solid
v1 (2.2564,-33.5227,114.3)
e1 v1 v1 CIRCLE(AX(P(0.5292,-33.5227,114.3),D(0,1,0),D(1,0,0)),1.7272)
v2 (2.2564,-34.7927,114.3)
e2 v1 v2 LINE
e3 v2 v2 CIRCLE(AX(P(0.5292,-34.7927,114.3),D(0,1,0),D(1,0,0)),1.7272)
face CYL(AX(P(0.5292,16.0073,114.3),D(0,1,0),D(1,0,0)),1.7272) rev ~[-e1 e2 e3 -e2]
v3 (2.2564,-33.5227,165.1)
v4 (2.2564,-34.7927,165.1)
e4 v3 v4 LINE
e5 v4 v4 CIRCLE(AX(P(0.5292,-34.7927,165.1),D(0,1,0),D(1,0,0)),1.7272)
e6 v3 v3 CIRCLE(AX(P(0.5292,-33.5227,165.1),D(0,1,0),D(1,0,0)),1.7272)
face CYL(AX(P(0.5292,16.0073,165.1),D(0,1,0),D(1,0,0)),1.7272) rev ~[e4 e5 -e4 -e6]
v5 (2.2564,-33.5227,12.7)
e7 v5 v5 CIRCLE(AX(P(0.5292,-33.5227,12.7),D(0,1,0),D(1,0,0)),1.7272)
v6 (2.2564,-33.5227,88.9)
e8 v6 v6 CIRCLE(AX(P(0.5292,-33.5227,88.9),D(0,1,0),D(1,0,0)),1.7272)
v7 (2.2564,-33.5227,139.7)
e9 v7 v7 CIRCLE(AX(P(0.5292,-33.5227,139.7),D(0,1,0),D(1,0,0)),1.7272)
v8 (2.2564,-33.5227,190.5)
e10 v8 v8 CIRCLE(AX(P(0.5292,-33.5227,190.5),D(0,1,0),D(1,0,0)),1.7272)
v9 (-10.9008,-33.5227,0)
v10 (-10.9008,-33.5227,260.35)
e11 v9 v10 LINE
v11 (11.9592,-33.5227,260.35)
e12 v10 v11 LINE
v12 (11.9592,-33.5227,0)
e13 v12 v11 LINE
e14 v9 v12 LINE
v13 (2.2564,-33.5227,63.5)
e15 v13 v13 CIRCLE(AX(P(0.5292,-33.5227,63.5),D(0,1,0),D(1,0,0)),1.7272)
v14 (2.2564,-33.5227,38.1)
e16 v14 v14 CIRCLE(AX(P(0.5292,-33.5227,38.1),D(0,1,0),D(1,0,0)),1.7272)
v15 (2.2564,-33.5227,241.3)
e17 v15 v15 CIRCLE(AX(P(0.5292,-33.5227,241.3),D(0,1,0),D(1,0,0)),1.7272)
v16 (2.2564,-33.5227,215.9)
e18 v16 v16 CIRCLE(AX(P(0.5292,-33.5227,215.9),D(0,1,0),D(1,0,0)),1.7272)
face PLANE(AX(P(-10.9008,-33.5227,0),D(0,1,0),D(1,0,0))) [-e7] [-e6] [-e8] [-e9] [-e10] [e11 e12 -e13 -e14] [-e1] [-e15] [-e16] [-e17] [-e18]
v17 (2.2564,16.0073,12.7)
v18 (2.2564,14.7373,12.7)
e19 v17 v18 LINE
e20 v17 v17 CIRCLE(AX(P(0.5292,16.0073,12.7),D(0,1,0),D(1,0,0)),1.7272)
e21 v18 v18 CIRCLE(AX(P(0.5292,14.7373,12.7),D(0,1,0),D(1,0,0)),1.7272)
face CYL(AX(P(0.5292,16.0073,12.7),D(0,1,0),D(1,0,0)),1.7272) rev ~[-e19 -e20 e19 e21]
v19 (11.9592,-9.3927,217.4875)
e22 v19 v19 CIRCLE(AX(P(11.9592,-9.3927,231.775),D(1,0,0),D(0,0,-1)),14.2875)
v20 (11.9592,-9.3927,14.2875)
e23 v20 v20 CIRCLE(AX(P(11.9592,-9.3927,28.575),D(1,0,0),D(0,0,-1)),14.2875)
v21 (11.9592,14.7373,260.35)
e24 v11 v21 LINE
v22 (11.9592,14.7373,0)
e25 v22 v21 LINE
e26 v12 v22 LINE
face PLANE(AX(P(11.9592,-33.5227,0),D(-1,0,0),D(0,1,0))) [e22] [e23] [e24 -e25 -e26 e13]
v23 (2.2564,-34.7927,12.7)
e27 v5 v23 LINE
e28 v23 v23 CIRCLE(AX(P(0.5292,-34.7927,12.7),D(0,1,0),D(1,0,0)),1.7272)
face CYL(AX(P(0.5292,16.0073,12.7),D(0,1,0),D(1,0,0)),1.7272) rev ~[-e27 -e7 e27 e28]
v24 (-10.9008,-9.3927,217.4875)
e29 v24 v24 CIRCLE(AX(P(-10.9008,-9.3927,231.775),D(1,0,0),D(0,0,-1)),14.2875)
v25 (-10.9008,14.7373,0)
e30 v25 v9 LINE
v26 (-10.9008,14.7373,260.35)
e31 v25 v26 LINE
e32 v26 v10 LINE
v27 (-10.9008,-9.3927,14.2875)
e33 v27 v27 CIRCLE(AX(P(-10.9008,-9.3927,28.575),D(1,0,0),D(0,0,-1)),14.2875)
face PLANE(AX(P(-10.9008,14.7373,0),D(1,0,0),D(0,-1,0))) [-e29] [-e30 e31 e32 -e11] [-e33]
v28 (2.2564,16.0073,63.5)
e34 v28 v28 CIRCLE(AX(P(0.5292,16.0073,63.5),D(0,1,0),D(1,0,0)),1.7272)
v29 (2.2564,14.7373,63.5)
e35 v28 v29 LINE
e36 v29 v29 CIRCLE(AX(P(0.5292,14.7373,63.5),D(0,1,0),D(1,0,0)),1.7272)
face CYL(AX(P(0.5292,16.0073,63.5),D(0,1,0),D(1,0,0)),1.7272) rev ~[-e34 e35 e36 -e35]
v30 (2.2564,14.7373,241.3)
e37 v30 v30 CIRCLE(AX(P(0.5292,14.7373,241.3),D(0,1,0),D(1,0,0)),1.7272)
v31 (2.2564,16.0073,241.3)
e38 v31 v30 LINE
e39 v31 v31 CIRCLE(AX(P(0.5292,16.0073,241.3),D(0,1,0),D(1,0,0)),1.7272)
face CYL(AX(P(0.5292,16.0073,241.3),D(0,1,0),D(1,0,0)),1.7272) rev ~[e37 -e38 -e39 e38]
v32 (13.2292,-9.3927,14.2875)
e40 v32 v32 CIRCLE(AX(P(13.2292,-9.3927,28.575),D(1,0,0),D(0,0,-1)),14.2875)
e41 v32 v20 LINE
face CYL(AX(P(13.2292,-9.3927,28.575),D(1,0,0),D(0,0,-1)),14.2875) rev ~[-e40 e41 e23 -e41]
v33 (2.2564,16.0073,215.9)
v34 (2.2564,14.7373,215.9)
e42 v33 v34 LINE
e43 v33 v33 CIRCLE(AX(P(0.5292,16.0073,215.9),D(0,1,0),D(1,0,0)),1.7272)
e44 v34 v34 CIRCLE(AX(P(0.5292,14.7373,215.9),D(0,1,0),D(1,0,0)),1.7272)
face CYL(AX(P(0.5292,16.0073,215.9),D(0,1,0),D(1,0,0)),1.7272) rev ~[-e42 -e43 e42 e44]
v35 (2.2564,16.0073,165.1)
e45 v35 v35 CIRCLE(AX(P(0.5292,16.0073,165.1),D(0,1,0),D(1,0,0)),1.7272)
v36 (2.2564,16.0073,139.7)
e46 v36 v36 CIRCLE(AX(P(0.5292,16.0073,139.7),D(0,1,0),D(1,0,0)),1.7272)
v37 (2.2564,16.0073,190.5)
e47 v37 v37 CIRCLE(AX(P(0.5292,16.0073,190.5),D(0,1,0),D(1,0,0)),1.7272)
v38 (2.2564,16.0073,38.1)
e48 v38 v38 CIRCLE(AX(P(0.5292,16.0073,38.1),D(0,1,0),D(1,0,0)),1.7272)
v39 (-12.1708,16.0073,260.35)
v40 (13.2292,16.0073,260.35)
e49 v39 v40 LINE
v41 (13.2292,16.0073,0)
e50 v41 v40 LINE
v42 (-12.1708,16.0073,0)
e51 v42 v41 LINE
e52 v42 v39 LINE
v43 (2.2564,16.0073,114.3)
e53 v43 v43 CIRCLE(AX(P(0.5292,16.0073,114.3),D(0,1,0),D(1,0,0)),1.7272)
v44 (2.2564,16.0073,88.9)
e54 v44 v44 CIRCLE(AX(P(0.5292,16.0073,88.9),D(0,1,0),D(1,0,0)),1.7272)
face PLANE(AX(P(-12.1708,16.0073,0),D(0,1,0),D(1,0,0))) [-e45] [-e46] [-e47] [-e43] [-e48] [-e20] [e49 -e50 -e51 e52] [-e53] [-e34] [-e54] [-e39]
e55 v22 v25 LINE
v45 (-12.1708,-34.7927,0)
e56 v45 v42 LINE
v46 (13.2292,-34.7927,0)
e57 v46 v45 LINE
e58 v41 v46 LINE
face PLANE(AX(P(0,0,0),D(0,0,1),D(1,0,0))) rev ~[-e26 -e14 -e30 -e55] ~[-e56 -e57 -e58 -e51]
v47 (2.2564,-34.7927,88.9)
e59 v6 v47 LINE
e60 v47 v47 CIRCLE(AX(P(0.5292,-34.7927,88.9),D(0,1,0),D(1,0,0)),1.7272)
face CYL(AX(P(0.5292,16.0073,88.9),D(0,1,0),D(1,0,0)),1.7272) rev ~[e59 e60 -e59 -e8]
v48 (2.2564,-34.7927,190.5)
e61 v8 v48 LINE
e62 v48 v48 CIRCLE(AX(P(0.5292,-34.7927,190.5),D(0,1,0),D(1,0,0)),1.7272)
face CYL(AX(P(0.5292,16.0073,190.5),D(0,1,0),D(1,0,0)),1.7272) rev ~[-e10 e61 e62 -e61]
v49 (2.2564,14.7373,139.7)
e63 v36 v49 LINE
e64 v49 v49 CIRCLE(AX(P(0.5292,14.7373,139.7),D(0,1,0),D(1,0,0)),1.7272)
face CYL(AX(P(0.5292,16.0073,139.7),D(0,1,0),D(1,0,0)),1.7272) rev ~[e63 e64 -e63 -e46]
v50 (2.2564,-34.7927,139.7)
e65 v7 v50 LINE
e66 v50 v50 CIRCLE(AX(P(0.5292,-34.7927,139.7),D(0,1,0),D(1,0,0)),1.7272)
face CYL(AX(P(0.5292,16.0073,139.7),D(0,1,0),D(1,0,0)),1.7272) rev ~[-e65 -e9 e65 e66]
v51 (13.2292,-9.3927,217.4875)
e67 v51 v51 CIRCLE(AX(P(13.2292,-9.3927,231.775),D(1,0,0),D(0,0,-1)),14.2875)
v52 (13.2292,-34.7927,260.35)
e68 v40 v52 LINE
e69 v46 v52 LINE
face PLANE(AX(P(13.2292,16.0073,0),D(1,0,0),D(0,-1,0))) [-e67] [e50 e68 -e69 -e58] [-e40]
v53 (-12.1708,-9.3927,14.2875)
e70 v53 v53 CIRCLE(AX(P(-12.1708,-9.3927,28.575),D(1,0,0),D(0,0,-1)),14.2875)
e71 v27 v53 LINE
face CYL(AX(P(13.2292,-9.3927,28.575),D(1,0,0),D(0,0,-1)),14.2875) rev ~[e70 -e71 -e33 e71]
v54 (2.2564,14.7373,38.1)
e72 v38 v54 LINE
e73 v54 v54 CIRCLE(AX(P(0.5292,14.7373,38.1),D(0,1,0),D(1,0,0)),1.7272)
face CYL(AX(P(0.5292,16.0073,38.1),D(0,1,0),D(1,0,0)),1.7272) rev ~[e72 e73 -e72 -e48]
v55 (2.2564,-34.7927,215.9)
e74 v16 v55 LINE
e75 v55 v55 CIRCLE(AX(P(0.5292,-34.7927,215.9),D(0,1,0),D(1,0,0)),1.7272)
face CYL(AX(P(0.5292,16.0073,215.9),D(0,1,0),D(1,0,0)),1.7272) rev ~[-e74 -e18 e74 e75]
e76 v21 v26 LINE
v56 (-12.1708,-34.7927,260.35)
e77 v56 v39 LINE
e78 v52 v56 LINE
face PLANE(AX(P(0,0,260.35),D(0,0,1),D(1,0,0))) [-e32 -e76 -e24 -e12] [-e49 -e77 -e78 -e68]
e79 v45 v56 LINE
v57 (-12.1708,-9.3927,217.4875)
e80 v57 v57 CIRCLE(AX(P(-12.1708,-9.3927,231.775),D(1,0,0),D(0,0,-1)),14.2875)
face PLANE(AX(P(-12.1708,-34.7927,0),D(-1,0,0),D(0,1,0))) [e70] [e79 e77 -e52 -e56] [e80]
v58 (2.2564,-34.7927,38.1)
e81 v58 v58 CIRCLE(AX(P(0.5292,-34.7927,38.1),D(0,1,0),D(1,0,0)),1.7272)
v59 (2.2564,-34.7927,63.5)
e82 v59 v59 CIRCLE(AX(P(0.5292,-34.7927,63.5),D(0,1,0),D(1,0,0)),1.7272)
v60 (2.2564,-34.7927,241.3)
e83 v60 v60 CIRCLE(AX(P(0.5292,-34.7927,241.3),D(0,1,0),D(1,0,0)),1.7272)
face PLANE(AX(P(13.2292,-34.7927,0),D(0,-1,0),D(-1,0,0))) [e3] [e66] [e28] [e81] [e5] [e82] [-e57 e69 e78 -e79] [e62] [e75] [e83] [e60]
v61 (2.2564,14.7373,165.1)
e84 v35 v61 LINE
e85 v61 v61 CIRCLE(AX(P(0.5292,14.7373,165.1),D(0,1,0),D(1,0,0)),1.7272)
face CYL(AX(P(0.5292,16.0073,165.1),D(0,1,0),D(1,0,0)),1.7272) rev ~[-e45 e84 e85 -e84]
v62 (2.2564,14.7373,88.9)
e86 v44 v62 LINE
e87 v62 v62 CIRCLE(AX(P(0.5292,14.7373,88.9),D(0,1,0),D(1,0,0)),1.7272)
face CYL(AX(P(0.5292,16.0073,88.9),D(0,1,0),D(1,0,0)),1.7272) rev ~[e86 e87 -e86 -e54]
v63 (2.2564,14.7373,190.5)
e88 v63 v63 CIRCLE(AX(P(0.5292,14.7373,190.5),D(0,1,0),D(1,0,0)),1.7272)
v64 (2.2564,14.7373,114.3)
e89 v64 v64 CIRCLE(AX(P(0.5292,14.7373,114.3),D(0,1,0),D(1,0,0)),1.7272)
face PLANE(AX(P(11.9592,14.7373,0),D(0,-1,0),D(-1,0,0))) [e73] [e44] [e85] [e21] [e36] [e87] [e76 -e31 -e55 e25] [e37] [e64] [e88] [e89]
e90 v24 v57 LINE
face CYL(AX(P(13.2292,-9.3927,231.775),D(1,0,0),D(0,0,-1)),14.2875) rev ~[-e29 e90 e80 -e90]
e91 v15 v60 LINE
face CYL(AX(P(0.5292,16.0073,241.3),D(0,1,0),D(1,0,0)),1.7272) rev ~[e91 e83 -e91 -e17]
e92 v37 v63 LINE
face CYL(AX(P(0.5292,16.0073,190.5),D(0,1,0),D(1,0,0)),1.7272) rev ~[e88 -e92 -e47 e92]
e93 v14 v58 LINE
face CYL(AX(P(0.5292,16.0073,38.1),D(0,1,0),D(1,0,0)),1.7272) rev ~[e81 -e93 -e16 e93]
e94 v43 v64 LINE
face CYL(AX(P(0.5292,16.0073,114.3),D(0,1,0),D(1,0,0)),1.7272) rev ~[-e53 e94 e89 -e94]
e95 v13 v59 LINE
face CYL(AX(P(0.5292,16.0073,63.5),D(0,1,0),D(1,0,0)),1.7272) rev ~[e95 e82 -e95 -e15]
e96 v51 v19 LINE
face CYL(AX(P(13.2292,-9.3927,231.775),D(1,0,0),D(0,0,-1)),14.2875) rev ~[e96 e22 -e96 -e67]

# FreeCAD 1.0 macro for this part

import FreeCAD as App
import Part
import Sketcher
Q = App.Units.Quantity


def add_polygon(sketch, points):
    """Adds a closed chain of lines whose ends are joined by coincident constraints."""
    first, n = sketch.GeometryCount, len(points)
    for a, b in zip(points, points[1:] + points[:1]):
        sketch.addGeometry(Part.LineSegment(App.Vector(*a, 0), App.Vector(*b, 0)), False)
    for i in range(n):
        sketch.addConstraint(Sketcher.Constraint("Coincident", first + i, 2, first + (i + 1) % n, 1))

doc = App.newDocument("Part")
body = doc.addObject("PartDesign::Body", "Body")

# Sketch on XY plane
sketch1 = body.newObject("Sketcher::SketchObject", "Sketch")
sketch1.AttachmentSupport = (doc.getObject("XY_Plane"), [""])
sketch1.MapMode = "FlatFace"
add_polygon(sketch1, [(13, 16), (-12, 16), (-12, -35), (13, -35)])  # lines 0-3
add_polygon(sketch1, [(-11, 15), (12, 15), (12, -34), (-11, -34)])  # lines 4-7
sketch1.addConstraint([
    Sketcher.Constraint("Horizontal", 0),
    Sketcher.Constraint("Vertical", 1),
    Sketcher.Constraint("Horizontal", 2),
    Sketcher.Constraint("Vertical", 3),
    Sketcher.Constraint("Horizontal", 4),
    Sketcher.Constraint("Vertical", 5),
    Sketcher.Constraint("Horizontal", 6),
    Sketcher.Constraint("Vertical", 7),
    Sketcher.Constraint("DistanceX", 0, 2, 0, 1, Q("1 in")),
    Sketcher.Constraint("DistanceY", 1, 2, 1, 1, Q("2 in")),
    Sketcher.Constraint("DistanceX", 4, 2, 3, 2, Q("0.05 in")),
    Sketcher.Constraint("DistanceY", 4, 2, 3, 2, Q("0.05 in")),
    Sketcher.Constraint("DistanceY", 2, 2, 5, 2, Q("0.05 in")),
    Sketcher.Constraint("DistanceX", 1, 2, 6, 2, Q("0.05 in")),
    Sketcher.Constraint("DistanceY", -1, 1, 0, 2, Q("0.6302 in")),
    Sketcher.Constraint("DistanceX", 0, 2, -1, 1, Q("12.1708 mm")),
])
pad1 = body.newObject("PartDesign::Pad", "Pad")
pad1.Profile = sketch1
pad1.Length = Q("10.25 in")

# Sketch on XZ plane
sketch2 = body.newObject("Sketcher::SketchObject", "Sketch001")
sketch2.AttachmentSupport = (doc.getObject("XZ_Plane"), [""])
sketch2.MapMode = "FlatFace"
sketch2.AttachmentOffset = App.Placement(App.Vector(0, 0, -0.6302087 * 25.4), App.Rotation())
sketch2.addGeometry(Part.Circle(App.Vector(0.5, 12.7, 0), App.Vector(0, 0, 1), 1.7), False)
sketch2.addConstraint([
    Sketcher.Constraint("Diameter", 0, Q("0.136 in")),
    Sketcher.Constraint("DistanceY", -1, 1, 0, 3, Q("0.5 in")),
    Sketcher.Constraint("DistanceX", -1, 1, 0, 3, Q("0.5292 mm")),
])
pocket1 = body.newObject("PartDesign::Pocket", "Pocket")
pocket1.Profile = sketch2
pocket1.Type = "ThroughAll"
pocket1.Reversed = True
doc.recompute()

linearpattern = body.newObject("PartDesign::LinearPattern", "LinearPattern")
linearpattern.Originals = [pocket1]
linearpattern.Direction = (doc.getObject("Z_Axis"), [""])
linearpattern.Mode = "offset"
linearpattern.Offset = Q("1 in")
linearpattern.Occurrences = 26
body.Tip = linearpattern

# Sketch on YZ plane
sketch3 = body.newObject("Sketcher::SketchObject", "Sketch002")
sketch3.AttachmentSupport = (doc.getObject("YZ_Plane"), [""])
sketch3.MapMode = "FlatFace"
sketch3.AttachmentOffset = App.Placement(App.Vector(0, 0, 13.2292), App.Rotation())
sketch3.addGeometry([
    Part.Circle(App.Vector(-9, 232, 0), App.Vector(0, 0, 1), 14),
    Part.Circle(App.Vector(-9, 29, 0), App.Vector(0, 0, 1), 14),
], False)
sketch3.addConstraint([
    Sketcher.Constraint("Equal", 0, 1),
    Sketcher.Constraint("Vertical", 0, 3, 1, 3),
    Sketcher.Constraint("Diameter", 0, Q("1.125 in")),
    Sketcher.Constraint("DistanceY", -1, 1, 1, 3, Q("1.125 in")),
    Sketcher.Constraint("DistanceY", 1, 3, 0, 3, Q("8 in")),
    Sketcher.Constraint("DistanceX", 0, 3, -1, 1, Q("0.3698 in")),
])
pocket2 = body.newObject("PartDesign::Pocket", "Pocket001")
pocket2.Profile = sketch3
pocket2.Type = "ThroughAll"

doc.recompute()
